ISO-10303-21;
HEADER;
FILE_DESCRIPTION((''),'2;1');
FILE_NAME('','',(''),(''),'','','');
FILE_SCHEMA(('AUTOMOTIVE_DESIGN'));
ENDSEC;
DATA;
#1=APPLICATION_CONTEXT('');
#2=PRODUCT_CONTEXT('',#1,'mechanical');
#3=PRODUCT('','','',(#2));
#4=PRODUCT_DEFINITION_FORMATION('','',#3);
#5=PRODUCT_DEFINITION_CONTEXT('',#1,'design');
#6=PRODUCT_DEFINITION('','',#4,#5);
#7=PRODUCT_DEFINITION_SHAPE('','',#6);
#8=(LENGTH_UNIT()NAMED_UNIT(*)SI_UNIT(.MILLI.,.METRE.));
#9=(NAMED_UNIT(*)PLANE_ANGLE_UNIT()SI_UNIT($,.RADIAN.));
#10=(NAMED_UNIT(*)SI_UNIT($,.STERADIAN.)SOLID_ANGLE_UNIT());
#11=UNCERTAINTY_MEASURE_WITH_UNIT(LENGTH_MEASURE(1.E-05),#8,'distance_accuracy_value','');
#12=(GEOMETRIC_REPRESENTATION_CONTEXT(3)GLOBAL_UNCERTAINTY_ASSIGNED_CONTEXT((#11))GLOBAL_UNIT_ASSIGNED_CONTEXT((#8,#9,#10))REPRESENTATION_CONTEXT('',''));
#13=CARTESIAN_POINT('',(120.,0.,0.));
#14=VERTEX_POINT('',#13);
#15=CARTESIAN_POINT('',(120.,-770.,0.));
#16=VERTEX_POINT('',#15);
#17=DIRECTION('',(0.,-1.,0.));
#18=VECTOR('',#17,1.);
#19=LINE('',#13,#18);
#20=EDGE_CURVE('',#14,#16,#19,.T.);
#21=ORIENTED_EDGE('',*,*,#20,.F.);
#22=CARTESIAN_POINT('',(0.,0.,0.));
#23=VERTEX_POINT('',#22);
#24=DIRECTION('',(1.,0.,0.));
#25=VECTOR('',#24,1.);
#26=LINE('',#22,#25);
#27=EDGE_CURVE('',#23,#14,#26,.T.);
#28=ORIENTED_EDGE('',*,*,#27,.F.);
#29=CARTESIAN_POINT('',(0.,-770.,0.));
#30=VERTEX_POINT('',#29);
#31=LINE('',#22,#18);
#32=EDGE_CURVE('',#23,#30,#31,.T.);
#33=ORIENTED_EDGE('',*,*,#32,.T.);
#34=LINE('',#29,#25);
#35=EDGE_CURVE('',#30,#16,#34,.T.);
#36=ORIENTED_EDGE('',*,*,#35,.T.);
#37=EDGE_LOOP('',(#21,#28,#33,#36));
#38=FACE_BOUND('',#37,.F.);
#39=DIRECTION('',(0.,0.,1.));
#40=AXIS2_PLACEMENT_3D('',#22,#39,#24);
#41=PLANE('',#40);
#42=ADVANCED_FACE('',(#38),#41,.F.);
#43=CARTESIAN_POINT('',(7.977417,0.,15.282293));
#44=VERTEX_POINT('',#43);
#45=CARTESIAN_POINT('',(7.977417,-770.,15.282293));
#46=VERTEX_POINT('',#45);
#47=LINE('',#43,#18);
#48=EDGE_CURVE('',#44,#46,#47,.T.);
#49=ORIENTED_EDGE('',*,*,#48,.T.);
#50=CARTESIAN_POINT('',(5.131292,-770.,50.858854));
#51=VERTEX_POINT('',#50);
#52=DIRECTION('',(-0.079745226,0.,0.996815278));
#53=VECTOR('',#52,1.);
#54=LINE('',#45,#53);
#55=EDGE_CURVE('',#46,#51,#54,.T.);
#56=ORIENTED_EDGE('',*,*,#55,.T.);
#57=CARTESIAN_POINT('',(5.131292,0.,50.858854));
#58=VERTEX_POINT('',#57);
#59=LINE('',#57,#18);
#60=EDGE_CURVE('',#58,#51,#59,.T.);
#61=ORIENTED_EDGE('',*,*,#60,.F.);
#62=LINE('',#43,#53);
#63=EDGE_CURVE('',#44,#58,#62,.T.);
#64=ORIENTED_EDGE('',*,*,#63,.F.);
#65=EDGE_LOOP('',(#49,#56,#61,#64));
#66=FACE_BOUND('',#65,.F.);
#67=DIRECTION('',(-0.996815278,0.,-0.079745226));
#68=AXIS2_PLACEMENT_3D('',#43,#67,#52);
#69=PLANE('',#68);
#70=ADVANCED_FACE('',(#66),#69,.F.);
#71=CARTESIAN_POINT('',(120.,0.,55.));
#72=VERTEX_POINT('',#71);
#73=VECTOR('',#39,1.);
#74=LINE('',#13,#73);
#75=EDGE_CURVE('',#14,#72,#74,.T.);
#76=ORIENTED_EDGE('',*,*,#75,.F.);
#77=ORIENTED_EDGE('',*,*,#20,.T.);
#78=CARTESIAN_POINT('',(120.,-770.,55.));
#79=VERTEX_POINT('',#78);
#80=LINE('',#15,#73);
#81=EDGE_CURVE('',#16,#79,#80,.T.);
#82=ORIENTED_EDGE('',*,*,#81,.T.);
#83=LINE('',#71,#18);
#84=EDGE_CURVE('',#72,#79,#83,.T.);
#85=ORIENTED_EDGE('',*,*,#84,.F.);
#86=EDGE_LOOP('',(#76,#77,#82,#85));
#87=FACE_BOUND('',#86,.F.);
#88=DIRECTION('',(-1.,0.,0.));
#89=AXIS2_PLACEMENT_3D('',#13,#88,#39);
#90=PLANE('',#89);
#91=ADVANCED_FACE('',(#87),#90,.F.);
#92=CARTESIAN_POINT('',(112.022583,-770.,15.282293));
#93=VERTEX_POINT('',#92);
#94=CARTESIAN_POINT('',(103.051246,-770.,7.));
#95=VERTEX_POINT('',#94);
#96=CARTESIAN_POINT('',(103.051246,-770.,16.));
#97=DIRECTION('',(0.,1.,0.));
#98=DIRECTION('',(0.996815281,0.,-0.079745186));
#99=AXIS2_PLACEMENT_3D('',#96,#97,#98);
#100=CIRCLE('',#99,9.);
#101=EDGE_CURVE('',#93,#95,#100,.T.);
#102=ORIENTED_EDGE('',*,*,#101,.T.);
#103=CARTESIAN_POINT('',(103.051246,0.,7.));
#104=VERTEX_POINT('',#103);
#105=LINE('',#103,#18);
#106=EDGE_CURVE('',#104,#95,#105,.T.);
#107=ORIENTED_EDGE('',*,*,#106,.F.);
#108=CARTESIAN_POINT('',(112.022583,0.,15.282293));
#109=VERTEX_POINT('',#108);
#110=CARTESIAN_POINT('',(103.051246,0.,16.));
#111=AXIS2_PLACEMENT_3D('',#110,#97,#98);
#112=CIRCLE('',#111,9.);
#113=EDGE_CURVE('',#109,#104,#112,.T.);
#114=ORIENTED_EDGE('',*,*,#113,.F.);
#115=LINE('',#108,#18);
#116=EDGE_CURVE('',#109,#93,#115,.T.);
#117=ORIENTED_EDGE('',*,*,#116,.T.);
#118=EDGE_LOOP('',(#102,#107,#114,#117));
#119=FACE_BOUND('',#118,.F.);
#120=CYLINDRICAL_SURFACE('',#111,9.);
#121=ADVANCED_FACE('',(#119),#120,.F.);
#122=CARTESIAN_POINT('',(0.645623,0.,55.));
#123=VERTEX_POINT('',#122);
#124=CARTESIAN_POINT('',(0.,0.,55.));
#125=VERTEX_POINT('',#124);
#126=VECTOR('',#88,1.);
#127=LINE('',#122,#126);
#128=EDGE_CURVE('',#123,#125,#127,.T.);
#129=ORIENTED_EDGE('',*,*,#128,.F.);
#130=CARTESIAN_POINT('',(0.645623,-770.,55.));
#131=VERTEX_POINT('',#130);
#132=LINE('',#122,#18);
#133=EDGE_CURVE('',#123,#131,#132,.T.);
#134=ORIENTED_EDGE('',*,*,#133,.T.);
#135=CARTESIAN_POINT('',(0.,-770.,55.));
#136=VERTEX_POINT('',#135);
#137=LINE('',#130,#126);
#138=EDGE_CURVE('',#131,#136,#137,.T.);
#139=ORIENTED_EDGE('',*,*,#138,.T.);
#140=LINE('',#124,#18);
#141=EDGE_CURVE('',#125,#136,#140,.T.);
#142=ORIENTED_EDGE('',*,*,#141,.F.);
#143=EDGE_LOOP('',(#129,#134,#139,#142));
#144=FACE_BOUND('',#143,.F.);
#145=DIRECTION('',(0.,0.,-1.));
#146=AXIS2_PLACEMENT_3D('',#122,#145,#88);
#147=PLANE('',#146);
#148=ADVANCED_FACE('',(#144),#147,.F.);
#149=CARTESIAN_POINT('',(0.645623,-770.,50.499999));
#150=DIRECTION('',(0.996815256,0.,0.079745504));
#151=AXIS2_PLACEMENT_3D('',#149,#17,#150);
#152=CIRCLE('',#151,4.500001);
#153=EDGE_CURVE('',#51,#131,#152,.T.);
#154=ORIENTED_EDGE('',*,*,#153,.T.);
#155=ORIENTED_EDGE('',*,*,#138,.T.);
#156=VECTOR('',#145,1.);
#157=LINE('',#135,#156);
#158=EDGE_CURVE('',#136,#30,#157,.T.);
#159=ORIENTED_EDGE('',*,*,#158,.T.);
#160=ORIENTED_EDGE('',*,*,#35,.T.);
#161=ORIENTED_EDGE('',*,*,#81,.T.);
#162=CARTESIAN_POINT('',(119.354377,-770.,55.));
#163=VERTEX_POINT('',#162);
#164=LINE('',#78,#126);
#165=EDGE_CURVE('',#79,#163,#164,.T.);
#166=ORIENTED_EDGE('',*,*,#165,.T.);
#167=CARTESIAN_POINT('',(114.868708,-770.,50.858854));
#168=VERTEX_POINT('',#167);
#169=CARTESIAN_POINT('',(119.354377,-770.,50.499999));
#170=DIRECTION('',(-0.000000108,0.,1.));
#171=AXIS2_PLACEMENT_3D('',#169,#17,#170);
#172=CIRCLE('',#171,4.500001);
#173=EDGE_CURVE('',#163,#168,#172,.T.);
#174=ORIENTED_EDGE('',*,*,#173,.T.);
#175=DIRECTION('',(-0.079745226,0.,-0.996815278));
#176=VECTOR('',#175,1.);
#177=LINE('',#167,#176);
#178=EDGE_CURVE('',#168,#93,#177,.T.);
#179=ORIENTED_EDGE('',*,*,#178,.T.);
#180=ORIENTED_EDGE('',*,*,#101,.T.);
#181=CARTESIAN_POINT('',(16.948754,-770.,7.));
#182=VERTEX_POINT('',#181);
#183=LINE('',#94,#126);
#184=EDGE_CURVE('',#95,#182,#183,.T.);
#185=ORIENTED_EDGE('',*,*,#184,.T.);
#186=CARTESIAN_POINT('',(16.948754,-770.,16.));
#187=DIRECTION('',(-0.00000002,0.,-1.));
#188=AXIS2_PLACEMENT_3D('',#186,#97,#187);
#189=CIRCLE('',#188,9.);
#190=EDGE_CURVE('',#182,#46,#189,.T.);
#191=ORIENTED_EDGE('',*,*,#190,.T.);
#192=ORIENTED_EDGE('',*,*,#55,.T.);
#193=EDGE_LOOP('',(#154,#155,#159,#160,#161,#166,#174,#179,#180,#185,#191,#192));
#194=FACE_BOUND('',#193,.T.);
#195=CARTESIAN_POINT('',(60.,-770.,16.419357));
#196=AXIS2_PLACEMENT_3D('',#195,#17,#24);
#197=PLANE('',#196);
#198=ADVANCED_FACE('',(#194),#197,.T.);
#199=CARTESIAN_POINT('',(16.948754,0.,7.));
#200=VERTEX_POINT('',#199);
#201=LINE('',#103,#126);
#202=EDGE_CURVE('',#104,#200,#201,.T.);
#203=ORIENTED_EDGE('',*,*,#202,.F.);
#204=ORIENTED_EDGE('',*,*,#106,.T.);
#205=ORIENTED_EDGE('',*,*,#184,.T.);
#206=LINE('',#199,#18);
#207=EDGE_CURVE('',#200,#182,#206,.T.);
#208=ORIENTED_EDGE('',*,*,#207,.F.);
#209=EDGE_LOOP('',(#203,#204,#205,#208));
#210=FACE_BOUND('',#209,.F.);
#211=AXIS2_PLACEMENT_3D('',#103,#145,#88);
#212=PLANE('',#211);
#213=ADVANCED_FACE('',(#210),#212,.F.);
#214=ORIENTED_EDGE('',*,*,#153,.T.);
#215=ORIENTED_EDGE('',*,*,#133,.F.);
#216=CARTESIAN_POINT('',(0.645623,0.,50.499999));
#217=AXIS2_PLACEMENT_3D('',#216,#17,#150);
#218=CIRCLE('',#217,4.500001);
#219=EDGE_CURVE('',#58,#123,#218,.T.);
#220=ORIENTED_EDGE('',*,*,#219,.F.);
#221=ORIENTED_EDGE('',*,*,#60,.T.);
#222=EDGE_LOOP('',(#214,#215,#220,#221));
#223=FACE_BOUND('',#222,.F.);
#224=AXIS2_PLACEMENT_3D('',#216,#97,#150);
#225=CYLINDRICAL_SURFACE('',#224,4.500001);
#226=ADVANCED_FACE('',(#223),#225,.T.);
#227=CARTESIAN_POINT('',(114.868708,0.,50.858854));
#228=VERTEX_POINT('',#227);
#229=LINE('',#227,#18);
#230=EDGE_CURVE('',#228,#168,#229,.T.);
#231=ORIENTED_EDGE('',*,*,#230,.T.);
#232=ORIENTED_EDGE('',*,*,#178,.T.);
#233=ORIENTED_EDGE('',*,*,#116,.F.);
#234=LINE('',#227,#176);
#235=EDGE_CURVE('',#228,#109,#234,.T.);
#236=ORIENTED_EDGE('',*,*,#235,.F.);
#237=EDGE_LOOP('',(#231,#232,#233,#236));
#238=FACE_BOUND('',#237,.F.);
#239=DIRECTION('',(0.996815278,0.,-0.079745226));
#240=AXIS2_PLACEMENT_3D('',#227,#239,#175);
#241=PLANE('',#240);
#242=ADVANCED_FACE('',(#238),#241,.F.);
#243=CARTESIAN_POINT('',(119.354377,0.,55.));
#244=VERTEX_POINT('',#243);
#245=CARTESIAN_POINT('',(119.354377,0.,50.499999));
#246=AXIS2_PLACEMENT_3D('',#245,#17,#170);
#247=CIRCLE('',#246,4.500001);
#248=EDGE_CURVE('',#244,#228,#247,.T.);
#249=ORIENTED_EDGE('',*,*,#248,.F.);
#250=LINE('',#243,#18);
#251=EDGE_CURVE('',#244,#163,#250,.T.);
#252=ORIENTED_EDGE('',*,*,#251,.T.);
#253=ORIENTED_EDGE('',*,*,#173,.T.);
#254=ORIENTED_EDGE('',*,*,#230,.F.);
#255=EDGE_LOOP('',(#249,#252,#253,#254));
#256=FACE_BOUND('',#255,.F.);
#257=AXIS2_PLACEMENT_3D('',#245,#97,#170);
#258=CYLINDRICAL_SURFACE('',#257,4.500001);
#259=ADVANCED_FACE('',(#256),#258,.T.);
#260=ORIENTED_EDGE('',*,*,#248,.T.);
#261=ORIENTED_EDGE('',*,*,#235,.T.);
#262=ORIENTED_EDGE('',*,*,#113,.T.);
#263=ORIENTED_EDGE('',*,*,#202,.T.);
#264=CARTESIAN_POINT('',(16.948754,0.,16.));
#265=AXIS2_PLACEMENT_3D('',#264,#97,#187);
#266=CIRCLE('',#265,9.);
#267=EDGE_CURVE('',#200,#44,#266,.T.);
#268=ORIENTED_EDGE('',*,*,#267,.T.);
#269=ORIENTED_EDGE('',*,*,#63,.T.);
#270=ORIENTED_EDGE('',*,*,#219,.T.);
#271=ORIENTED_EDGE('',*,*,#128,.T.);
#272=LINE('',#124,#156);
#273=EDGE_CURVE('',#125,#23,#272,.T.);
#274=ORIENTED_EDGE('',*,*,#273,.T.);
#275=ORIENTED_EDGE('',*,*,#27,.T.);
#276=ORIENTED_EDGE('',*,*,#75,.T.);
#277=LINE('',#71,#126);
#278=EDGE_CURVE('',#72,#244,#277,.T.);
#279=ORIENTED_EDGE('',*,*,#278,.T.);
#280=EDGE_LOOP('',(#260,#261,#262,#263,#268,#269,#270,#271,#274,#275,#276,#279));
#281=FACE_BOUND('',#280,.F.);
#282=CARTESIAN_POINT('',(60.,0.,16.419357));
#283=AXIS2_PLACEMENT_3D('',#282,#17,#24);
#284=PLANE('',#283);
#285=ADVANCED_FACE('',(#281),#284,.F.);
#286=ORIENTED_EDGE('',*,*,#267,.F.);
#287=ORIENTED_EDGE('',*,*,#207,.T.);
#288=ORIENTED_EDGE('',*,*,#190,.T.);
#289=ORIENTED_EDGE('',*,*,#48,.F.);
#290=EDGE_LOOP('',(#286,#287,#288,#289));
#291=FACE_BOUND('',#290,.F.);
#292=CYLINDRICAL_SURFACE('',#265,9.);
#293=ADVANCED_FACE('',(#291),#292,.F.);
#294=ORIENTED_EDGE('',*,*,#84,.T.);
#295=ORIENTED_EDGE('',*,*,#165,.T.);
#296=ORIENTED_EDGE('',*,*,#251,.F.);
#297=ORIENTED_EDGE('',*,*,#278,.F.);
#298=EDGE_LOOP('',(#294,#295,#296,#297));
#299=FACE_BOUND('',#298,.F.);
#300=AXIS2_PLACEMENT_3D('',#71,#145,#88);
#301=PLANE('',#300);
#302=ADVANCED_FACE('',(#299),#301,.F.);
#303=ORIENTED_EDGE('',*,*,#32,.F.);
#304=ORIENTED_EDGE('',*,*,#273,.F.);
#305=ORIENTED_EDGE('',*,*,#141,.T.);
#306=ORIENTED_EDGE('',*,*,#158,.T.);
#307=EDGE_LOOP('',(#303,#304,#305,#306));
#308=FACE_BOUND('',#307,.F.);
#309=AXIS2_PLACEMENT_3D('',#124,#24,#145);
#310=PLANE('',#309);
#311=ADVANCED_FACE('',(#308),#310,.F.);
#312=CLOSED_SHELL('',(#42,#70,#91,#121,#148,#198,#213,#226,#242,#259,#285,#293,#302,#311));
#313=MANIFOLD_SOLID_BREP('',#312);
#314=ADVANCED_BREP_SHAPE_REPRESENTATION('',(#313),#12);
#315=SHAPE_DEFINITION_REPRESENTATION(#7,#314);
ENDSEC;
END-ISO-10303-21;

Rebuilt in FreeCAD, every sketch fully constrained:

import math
import FreeCAD as App
import Part
import Sketcher

V = App.Vector
Q = App.Units.Quantity

doc = App.newDocument("Part")
body = doc.addObject("PartDesign::Body", "Body")

sketch1 = doc.addObject("Sketcher::SketchObject", "Sketch")
body.addObject(sketch1)
sketch1.AttachmentSupport = (doc.XZ_Plane, [""])
sketch1.MapMode = "FlatFace"
sketch1.addGeometry([
    Part.LineSegment(V(0.6, 55, 0), V(0, 55, 0)),
    Part.LineSegment(V(0, 55, 0), V(0, 0, 0)),
    Part.LineSegment(V(0, 0, 0), V(120, 0, 0)),
    Part.LineSegment(V(120, 0, 0), V(120, 55, 0)),
    Part.LineSegment(V(120, 55, 0), V(119.4, 55, 0)),
    Part.ArcOfCircle(Part.Circle(V(119.4, 50.5, 0), V(0, 0, 1), 4.5), math.radians(90), math.radians(175)),
    Part.LineSegment(V(114.9, 50.9, 0), V(112, 15.3, 0)),
    Part.ArcOfCircle(Part.Circle(V(103.1, 16, 0), V(0, 0, 1), 9), math.radians(-90), math.radians(-5)),
    Part.LineSegment(V(103.1, 7, 0), V(16.9, 7, 0)),
    Part.ArcOfCircle(Part.Circle(V(16.9, 16, 0), V(0, 0, 1), 9), math.radians(-175), math.radians(-90)),
    Part.LineSegment(V(8, 15.3, 0), V(5.1, 50.9, 0)),
    Part.ArcOfCircle(Part.Circle(V(0.6, 50.5, 0), V(0, 0, 1), 4.5), math.radians(5), math.radians(90)),
], False)
sketch1.addConstraint([
    Sketcher.Constraint("Coincident", 0, 2, 1, 1),
    Sketcher.Constraint("Coincident", 1, 2, 2, 1),
    Sketcher.Constraint("Coincident", 2, 2, 3, 1),
    Sketcher.Constraint("Coincident", 3, 2, 4, 1),
    Sketcher.Constraint("Tangent", 4, 2, 5, 1),
    Sketcher.Constraint("Tangent", 5, 2, 6, 1),
    Sketcher.Constraint("Tangent", 6, 2, 7, 2),
    Sketcher.Constraint("Tangent", 7, 1, 8, 1),
    Sketcher.Constraint("Tangent", 8, 2, 9, 2),
    Sketcher.Constraint("Tangent", 9, 1, 10, 1),
    Sketcher.Constraint("Tangent", 10, 2, 11, 1),
    Sketcher.Constraint("Tangent", 11, 2, 0, 1),
    Sketcher.Constraint("Horizontal", 0),
    Sketcher.Constraint("Vertical", 1),
    Sketcher.Constraint("Horizontal", 2),
    Sketcher.Constraint("Vertical", 3),
    Sketcher.Constraint("Horizontal", 4),
    Sketcher.Constraint("Horizontal", 8),
    Sketcher.Constraint("Coincident", 1, 2, -1, 1),
    Sketcher.Constraint("Equal", 7, 9),
    Sketcher.Constraint("Equal", 5, 11),
    Sketcher.Constraint("Horizontal", 5, 3, 11, 3),
    Sketcher.Constraint("Horizontal", 6, 2, 9, 1),
    Sketcher.Constraint("Equal", 0, 4),
    Sketcher.Constraint("Radius", 7, Q("9 mm")),
    Sketcher.Constraint("Radius", 5, Q("4.500001 mm")),
    Sketcher.Constraint("DistanceX", 2, 1, 2, 2, Q("120 mm")),
    Sketcher.Constraint("DistanceY", 1, 2, 1, 1, Q("55 mm")),
    Sketcher.Constraint("DistanceY", -1, 1, 7, 3, Q("16 mm")),
    Sketcher.Constraint("DistanceX", 0, 2, 0, 1, Q("0.645623 mm")),
    Sketcher.Constraint("DistanceX", 8, 2, 8, 1, Q("86.102492 mm")),
])
pad1 = doc.addObject("PartDesign::Pad", "Pad")
body.addObject(pad1)
pad1.Profile = sketch1
pad1.Length = 770

doc.recompute()
